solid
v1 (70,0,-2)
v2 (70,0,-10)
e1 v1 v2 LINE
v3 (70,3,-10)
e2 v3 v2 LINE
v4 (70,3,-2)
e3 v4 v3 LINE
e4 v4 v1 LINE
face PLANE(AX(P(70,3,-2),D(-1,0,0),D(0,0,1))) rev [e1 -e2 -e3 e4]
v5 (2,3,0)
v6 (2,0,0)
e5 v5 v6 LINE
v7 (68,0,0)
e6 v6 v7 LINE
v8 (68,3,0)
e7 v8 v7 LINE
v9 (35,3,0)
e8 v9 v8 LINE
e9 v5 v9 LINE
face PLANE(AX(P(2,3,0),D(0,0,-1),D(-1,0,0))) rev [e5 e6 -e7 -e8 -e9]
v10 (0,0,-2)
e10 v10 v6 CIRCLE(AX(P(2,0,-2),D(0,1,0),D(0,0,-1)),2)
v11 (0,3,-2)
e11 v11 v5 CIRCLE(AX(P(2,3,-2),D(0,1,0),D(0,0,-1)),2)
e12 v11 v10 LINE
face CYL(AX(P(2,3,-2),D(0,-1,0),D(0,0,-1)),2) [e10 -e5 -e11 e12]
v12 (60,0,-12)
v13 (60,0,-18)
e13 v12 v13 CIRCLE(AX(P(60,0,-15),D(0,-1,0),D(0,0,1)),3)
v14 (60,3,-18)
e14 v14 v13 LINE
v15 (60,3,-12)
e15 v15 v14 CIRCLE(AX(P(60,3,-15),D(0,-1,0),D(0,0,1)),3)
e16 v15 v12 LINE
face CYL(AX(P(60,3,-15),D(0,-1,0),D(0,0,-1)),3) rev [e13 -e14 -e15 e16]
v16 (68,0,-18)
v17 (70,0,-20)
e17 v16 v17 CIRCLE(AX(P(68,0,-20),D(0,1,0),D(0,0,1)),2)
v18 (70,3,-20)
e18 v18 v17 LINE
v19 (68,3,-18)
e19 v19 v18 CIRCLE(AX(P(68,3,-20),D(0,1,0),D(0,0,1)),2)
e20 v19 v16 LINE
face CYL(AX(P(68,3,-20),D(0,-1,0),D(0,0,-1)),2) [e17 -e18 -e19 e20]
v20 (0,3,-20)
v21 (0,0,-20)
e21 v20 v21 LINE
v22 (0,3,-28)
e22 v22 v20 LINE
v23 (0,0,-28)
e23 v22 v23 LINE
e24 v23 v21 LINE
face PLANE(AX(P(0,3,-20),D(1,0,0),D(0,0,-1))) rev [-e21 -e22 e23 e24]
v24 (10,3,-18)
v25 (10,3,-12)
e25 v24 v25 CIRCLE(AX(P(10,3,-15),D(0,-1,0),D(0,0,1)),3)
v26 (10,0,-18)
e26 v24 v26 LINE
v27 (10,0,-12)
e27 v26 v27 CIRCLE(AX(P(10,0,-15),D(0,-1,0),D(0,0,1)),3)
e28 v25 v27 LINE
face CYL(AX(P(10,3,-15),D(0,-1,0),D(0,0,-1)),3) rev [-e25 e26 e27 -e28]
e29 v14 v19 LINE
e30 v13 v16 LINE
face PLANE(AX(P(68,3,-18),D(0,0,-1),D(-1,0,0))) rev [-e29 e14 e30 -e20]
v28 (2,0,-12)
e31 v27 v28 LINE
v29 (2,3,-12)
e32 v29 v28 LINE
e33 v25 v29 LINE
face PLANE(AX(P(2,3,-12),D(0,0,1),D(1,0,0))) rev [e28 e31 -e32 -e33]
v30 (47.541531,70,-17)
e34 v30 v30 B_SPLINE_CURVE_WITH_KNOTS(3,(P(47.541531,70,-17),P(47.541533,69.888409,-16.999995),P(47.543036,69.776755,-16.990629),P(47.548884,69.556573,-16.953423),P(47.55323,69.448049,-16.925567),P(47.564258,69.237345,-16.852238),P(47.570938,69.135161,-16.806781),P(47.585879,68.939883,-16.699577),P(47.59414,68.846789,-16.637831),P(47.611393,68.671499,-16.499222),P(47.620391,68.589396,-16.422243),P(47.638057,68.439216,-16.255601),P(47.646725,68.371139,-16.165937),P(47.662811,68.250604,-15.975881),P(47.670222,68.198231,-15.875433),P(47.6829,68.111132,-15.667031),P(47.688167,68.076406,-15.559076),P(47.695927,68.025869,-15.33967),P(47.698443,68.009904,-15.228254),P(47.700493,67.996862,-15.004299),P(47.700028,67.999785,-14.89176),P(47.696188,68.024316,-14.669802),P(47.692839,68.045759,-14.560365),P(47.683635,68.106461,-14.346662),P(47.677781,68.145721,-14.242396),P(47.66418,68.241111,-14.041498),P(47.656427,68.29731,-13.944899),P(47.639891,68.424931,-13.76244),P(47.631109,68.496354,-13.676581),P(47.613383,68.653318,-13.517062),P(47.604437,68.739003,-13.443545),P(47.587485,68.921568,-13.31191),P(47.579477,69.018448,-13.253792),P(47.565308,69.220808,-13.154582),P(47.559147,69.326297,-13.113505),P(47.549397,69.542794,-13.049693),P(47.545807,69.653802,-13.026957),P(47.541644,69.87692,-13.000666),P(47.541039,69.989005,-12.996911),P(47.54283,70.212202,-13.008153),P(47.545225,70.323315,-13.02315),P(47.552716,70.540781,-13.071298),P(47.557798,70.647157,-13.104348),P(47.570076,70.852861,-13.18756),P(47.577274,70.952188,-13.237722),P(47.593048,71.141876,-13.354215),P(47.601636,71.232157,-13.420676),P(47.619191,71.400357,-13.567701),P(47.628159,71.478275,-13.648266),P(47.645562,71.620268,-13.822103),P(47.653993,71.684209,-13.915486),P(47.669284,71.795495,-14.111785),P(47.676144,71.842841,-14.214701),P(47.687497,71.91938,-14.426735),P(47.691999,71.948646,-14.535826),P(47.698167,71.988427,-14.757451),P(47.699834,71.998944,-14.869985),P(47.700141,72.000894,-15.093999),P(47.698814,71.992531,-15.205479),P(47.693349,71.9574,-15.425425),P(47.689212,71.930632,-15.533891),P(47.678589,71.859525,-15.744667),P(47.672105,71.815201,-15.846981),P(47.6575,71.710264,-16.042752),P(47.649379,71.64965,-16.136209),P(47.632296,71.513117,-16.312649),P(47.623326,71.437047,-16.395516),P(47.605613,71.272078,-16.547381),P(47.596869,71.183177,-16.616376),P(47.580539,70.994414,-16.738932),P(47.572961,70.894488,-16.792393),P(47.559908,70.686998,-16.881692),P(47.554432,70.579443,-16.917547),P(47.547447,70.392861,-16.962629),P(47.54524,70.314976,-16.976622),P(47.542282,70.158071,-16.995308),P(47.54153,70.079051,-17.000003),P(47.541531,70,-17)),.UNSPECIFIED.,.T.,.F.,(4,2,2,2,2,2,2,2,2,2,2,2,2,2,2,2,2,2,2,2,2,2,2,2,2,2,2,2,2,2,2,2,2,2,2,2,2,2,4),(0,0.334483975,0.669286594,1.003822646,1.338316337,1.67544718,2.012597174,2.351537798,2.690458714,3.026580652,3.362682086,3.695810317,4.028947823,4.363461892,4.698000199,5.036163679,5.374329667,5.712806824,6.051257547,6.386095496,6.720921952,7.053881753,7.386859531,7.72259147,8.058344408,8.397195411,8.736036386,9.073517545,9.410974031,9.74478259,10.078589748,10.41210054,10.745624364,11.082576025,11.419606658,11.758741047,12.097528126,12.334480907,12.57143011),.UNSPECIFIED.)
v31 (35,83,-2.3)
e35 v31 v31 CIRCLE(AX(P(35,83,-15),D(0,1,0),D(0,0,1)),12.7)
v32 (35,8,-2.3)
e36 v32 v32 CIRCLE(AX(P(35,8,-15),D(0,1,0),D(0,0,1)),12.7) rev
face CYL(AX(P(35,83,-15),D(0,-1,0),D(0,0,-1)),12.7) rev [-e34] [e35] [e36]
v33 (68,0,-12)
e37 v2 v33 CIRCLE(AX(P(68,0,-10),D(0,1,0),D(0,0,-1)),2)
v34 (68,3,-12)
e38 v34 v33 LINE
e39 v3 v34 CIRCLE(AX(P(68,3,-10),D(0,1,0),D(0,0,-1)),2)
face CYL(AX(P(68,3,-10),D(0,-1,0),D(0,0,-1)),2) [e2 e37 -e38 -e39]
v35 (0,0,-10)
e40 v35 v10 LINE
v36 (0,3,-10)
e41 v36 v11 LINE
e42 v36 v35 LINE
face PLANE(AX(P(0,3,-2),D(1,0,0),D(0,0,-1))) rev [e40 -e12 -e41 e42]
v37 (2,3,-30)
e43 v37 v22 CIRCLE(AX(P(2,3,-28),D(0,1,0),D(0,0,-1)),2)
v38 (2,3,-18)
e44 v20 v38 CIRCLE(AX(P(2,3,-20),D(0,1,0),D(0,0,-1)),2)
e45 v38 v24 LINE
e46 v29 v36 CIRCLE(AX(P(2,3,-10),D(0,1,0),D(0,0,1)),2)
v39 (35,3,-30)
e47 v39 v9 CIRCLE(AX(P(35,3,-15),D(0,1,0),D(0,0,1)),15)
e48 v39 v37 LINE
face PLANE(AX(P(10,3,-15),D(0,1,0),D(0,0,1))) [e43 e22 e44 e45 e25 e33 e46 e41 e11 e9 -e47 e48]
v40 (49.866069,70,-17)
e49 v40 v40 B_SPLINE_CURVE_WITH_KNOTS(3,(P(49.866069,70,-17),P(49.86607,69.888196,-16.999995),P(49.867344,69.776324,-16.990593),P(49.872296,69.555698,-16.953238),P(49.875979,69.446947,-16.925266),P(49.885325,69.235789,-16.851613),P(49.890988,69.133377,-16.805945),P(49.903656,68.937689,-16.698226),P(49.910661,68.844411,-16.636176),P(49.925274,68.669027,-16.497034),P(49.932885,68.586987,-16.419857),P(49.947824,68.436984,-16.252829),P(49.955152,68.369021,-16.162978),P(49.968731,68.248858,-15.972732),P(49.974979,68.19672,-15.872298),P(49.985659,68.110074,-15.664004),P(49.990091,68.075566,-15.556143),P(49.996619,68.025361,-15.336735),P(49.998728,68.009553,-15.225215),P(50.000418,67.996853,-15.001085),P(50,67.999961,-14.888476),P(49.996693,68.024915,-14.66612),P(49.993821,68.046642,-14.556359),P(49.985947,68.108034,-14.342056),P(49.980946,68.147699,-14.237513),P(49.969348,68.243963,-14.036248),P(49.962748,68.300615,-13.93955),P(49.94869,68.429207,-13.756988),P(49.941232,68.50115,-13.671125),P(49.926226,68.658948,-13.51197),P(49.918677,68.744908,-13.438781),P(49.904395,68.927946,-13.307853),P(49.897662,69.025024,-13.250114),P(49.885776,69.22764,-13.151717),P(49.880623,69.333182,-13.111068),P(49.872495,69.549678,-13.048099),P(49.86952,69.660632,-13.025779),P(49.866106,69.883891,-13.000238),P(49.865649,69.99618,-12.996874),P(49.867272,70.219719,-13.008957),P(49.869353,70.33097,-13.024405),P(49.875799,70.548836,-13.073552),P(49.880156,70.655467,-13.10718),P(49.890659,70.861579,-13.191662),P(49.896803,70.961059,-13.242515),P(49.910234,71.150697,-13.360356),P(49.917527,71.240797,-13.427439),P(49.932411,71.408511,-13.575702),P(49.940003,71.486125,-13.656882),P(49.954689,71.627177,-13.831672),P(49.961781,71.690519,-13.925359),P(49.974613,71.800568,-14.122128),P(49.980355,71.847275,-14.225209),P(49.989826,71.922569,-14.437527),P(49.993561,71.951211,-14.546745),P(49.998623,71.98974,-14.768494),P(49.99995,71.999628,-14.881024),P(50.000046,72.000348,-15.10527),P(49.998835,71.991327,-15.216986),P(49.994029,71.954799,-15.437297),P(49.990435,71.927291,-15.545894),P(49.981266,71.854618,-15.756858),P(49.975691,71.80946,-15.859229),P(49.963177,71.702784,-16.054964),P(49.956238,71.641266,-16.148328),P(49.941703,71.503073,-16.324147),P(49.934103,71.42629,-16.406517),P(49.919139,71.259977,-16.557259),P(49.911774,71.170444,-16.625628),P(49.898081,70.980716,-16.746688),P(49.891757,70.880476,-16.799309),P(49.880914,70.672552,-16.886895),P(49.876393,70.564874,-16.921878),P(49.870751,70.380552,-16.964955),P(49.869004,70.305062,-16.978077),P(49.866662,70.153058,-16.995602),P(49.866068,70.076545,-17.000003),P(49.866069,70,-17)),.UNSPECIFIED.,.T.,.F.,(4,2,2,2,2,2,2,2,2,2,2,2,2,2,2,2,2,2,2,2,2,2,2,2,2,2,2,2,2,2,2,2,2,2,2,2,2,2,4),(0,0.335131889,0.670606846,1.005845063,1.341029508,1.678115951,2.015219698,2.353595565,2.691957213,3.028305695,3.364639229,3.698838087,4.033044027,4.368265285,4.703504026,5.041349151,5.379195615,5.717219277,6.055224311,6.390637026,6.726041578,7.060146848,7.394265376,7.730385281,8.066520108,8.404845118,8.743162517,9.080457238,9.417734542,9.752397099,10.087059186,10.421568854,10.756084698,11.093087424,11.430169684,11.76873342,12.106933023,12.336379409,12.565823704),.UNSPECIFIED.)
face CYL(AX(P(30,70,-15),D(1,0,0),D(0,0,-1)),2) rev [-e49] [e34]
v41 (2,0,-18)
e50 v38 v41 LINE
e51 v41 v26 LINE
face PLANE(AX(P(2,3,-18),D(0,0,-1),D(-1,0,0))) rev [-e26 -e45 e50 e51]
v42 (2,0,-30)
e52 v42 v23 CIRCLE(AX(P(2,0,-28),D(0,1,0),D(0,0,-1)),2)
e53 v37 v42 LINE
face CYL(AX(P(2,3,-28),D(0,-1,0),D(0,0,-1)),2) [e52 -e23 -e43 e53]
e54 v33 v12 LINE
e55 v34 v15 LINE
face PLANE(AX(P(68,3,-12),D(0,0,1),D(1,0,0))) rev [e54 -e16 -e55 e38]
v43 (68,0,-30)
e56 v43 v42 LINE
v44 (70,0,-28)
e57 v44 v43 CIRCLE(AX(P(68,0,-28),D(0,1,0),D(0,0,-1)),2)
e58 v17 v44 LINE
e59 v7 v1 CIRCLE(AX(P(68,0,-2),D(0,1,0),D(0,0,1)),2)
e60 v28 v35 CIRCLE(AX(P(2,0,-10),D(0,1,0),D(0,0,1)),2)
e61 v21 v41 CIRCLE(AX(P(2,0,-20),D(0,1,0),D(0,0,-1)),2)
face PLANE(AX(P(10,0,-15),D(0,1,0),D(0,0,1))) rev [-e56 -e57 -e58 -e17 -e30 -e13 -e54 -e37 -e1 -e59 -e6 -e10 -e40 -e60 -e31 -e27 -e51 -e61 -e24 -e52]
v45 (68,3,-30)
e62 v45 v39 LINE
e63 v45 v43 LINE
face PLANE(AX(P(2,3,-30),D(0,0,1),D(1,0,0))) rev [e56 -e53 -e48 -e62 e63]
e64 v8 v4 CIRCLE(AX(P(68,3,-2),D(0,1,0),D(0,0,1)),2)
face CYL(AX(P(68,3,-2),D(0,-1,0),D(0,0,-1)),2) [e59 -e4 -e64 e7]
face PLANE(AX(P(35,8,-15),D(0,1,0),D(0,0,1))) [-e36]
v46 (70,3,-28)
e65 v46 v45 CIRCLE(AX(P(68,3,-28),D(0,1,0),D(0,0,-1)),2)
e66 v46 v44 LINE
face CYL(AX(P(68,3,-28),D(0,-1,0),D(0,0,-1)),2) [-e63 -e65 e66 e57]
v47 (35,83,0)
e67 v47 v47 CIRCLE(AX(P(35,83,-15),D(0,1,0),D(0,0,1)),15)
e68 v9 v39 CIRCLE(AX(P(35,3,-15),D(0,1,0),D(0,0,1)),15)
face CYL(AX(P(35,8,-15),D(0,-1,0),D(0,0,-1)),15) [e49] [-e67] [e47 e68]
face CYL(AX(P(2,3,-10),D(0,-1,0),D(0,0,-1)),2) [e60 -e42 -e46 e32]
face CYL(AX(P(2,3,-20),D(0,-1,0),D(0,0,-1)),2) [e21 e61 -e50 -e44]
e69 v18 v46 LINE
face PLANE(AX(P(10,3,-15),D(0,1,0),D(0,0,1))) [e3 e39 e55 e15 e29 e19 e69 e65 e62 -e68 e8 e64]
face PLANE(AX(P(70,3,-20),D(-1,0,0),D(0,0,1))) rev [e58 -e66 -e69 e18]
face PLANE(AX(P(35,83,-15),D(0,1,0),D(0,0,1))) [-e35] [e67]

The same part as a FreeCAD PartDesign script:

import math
import FreeCAD as App
import Part
import Sketcher

V = App.Vector

doc = App.newDocument("Part")
params = doc.addObject("Spreadsheet::Sheet", "Params")
for row, (alias, value) in enumerate([
    ("sketch1_radius", "2 mm"),
    ("sketch1_radius2", "3 mm"),
    ("sketch1_width", "66 mm"),
    ("sketch1_width2", "8 mm"),
    ("pad1_length", "3 mm"),
    ("sketch2_diameter", "30 mm"),
    ("pad2_length", "5 mm"),
    ("sketch3_diameter", "30 mm"),
    ("sketch3_diameter2", "25.4 mm"),
    ("pad3_length", "75 mm"),
    ("sketch4_diameter", "4 mm"),
    ("pocket1_length", "40 mm"),
], start=1):
    params.set(f"A{row}", alias)
    params.set(f"B{row}", "=" + value)
    params.setAlias(f"B{row}", alias)

body = doc.addObject("PartDesign::Body", "Body")

sketch1 = body.newObject("Sketcher::SketchObject", "Sketch")
sketch1.AttachmentSupport = (doc.getObject("XZ_Plane"), [""])
sketch1.MapMode = "FlatFace"
sketch1.addGeometry(Part.LineSegment(V(2, 0, 0), V(68, 0, 0)), False)
sketch1.addGeometry(Part.ArcOfCircle(Part.Circle(V(68, -2, 0), V(0, 0, 1), 2), math.radians(0), math.radians(90)), False)
sketch1.addGeometry(Part.LineSegment(V(70, -2, 0), V(70, -10, 0)), False)
sketch1.addGeometry(Part.ArcOfCircle(Part.Circle(V(68, -10, 0), V(0, 0, 1), 2), math.radians(-90), math.radians(0)), False)
sketch1.addGeometry(Part.LineSegment(V(68, -12, 0), V(60, -12, 0)), False)
sketch1.addGeometry(Part.ArcOfCircle(Part.Circle(V(60, -15, 0), V(0, 0, 1), 3), math.radians(90), math.radians(270)), False)
sketch1.addGeometry(Part.LineSegment(V(60, -18, 0), V(68, -18, 0)), False)
sketch1.addGeometry(Part.ArcOfCircle(Part.Circle(V(68, -20, 0), V(0, 0, 1), 2), math.radians(0), math.radians(90)), False)
sketch1.addGeometry(Part.LineSegment(V(70, -20, 0), V(70, -28, 0)), False)
sketch1.addGeometry(Part.ArcOfCircle(Part.Circle(V(68, -28, 0), V(0, 0, 1), 2), math.radians(-90), math.radians(0)), False)
sketch1.addGeometry(Part.LineSegment(V(68, -30, 0), V(2, -30, 0)), False)
sketch1.addGeometry(Part.ArcOfCircle(Part.Circle(V(2, -28, 0), V(0, 0, 1), 2), math.radians(-180), math.radians(-90)), False)
sketch1.addGeometry(Part.LineSegment(V(0, -28, 0), V(0, -20, 0)), False)
sketch1.addGeometry(Part.ArcOfCircle(Part.Circle(V(2, -20, 0), V(0, 0, 1), 2), math.radians(90), math.radians(180)), False)
sketch1.addGeometry(Part.LineSegment(V(2, -18, 0), V(10, -18, 0)), False)
sketch1.addGeometry(Part.ArcOfCircle(Part.Circle(V(10, -15, 0), V(0, 0, 1), 3), math.radians(-90), math.radians(90)), False)
sketch1.addGeometry(Part.LineSegment(V(10, -12, 0), V(2, -12, 0)), False)
sketch1.addGeometry(Part.ArcOfCircle(Part.Circle(V(2, -10, 0), V(0, 0, 1), 2), math.radians(-180), math.radians(-90)), False)
sketch1.addGeometry(Part.LineSegment(V(0, -10, 0), V(0, -2, 0)), False)
sketch1.addGeometry(Part.ArcOfCircle(Part.Circle(V(2, -2, 0), V(0, 0, 1), 2), math.radians(90), math.radians(180)), False)
sketch1.addConstraint(Sketcher.Constraint("Tangent", 0, 2, 1, 2))
sketch1.addConstraint(Sketcher.Constraint("Tangent", 1, 1, 2, 1))
sketch1.addConstraint(Sketcher.Constraint("Tangent", 2, 2, 3, 2))
sketch1.addConstraint(Sketcher.Constraint("Tangent", 3, 1, 4, 1))
sketch1.addConstraint(Sketcher.Constraint("Tangent", 4, 2, 5, 1))
sketch1.addConstraint(Sketcher.Constraint("Tangent", 5, 2, 6, 1))
sketch1.addConstraint(Sketcher.Constraint("Tangent", 6, 2, 7, 2))
sketch1.addConstraint(Sketcher.Constraint("Tangent", 7, 1, 8, 1))
sketch1.addConstraint(Sketcher.Constraint("Tangent", 8, 2, 9, 2))
sketch1.addConstraint(Sketcher.Constraint("Tangent", 9, 1, 10, 1))
sketch1.addConstraint(Sketcher.Constraint("Tangent", 10, 2, 11, 2))
sketch1.addConstraint(Sketcher.Constraint("Tangent", 11, 1, 12, 1))
sketch1.addConstraint(Sketcher.Constraint("Tangent", 12, 2, 13, 2))
sketch1.addConstraint(Sketcher.Constraint("Tangent", 13, 1, 14, 1))
sketch1.addConstraint(Sketcher.Constraint("Tangent", 14, 2, 15, 1))
sketch1.addConstraint(Sketcher.Constraint("Tangent", 15, 2, 16, 1))
sketch1.addConstraint(Sketcher.Constraint("Tangent", 16, 2, 17, 2))
sketch1.addConstraint(Sketcher.Constraint("Tangent", 17, 1, 18, 1))
sketch1.addConstraint(Sketcher.Constraint("Tangent", 18, 2, 19, 2))
sketch1.addConstraint(Sketcher.Constraint("Tangent", 19, 1, 0, 1))
sketch1.addConstraint(Sketcher.Constraint("Horizontal", 0))
sketch1.addConstraint(Sketcher.Constraint("Vertical", 2))
sketch1.addConstraint(Sketcher.Constraint("Horizontal", 4))
sketch1.addConstraint(Sketcher.Constraint("Horizontal", 6))
sketch1.addConstraint(Sketcher.Constraint("Vertical", 8))
sketch1.addConstraint(Sketcher.Constraint("Horizontal", 10))
sketch1.addConstraint(Sketcher.Constraint("Vertical", 12))
sketch1.addConstraint(Sketcher.Constraint("Horizontal", 14))
sketch1.addConstraint(Sketcher.Constraint("Horizontal", 16))
sketch1.addConstraint(Sketcher.Constraint("Vertical", 18))
sketch1.addConstraint(Sketcher.Constraint("Equal", 1, 3))
sketch1.addConstraint(Sketcher.Constraint("Equal", 3, 7))
sketch1.addConstraint(Sketcher.Constraint("Equal", 7, 9))
sketch1.addConstraint(Sketcher.Constraint("Equal", 9, 11))
sketch1.addConstraint(Sketcher.Constraint("Equal", 11, 13))
sketch1.addConstraint(Sketcher.Constraint("Equal", 5, 15))
sketch1.addConstraint(Sketcher.Constraint("Equal", 13, 17))
sketch1.addConstraint(Sketcher.Constraint("Equal", 17, 19))
sketch1.addConstraint(Sketcher.Constraint("PointOnObject", 0, 2, -1))
sketch1.addConstraint(Sketcher.Constraint("PointOnObject", 11, 1, -2))
sketch1.addConstraint(Sketcher.Constraint("PointOnObject", 17, 1, -2))
sketch1.addConstraint(Sketcher.Constraint("Horizontal", 7, 3, 13, 3))
sketch1.addConstraint(Sketcher.Constraint("Vertical", 3, 3, 7, 3))
sketch1.addConstraint(Sketcher.Constraint("Equal", 6, 14))
sketch1.addConstraint(Sketcher.Constraint("Equal", 16, 2))
sketch1.addConstraint(Sketcher.Constraint("Equal", 2, 8))
sketch1.addConstraint(Sketcher.Constraint("Radius", 1, 2.0))
sketch1.addConstraint(Sketcher.Constraint("Radius", 5, 3.0))
sketch1.addConstraint(Sketcher.Constraint("DistanceX", 0, 1, 0, 2, 66.0))
sketch1.addConstraint(Sketcher.Constraint("DistanceX", 4, 2, 4, 1, 8.0))
sketch1.setExpression("Constraints[46]", "Params.sketch1_radius")
sketch1.setExpression("Constraints[47]", "Params.sketch1_radius2")
sketch1.setExpression("Constraints[48]", "Params.sketch1_width")
sketch1.setExpression("Constraints[49]", "Params.sketch1_width2")
pad1 = body.newObject("PartDesign::Pad", "Pad")
pad1.Profile = sketch1
pad1.setExpression("Length", "Params.pad1_length")
pad1.Reversed = True

sketch2 = body.newObject("Sketcher::SketchObject", "Sketch001")
sketch2.AttachmentSupport = (doc.getObject("XZ_Plane"), [""])
sketch2.MapMode = "FlatFace"
sketch2.AttachmentOffset = App.Placement(V(0, 0, -3), App.Rotation())
sketch2.addGeometry(Part.Circle(V(35, -15, 0), V(0, 0, 1), 15), False)
sketch2.addConstraint(Sketcher.Constraint("Diameter", 0, 30.0))
sketch2.addConstraint(Sketcher.Constraint("DistanceX", -1, 1, 0, 3, 35.0))
sketch2.addConstraint(Sketcher.Constraint("DistanceY", 0, 3, -1, 1, 15.0))
sketch2.setExpression("Constraints[0]", "Params.sketch2_diameter")
pad2 = body.newObject("PartDesign::Pad", "Pad001")
pad2.Profile = sketch2
pad2.setExpression("Length", "Params.pad2_length")
pad2.Reversed = True

sketch3 = body.newObject("Sketcher::SketchObject", "Sketch002")
sketch3.AttachmentSupport = (doc.getObject("XZ_Plane"), [""])
sketch3.MapMode = "FlatFace"
sketch3.AttachmentOffset = App.Placement(V(0, 0, -8), App.Rotation())
sketch3.addGeometry(Part.Circle(V(35, -15, 0), V(0, 0, 1), 15), False)
sketch3.addGeometry(Part.Circle(V(35, -15, 0), V(0, 0, 1), 13), False)
sketch3.addConstraint(Sketcher.Constraint("Coincident", 1, 3, 0, 3))
sketch3.addConstraint(Sketcher.Constraint("Diameter", 0, 30.0))
sketch3.addConstraint(Sketcher.Constraint("Diameter", 1, 25.4))
sketch3.addConstraint(Sketcher.Constraint("DistanceX", -1, 1, 0, 3, 35.0))
sketch3.addConstraint(Sketcher.Constraint("DistanceY", 0, 3, -1, 1, 15.0))
sketch3.setExpression("Constraints[1]", "Params.sketch3_diameter")
sketch3.setExpression("Constraints[2]", "Params.sketch3_diameter2")
pad3 = body.newObject("PartDesign::Pad", "Pad002")
pad3.Profile = sketch3
pad3.setExpression("Length", "Params.pad3_length")
pad3.Reversed = True

sketch4 = body.newObject("Sketcher::SketchObject", "Sketch003")
sketch4.AttachmentSupport = (doc.getObject("YZ_Plane"), [""])
sketch4.MapMode = "FlatFace"
sketch4.AttachmentOffset = App.Placement(V(0, 0, 70), App.Rotation())
sketch4.addGeometry(Part.Circle(V(70, -15, 0), V(0, 0, 1), 2), False)
sketch4.addConstraint(Sketcher.Constraint("Diameter", 0, 4.0))
sketch4.addConstraint(Sketcher.Constraint("DistanceX", -1, 1, 0, 3, 70.0))
sketch4.addConstraint(Sketcher.Constraint("DistanceY", 0, 3, -1, 1, 15.0))
sketch4.setExpression("Constraints[0]", "Params.sketch4_diameter")
pocket1 = body.newObject("PartDesign::Pocket", "Pocket")
pocket1.Profile = sketch4
pocket1.setExpression("Length", "Params.pocket1_length")

doc.recompute()
